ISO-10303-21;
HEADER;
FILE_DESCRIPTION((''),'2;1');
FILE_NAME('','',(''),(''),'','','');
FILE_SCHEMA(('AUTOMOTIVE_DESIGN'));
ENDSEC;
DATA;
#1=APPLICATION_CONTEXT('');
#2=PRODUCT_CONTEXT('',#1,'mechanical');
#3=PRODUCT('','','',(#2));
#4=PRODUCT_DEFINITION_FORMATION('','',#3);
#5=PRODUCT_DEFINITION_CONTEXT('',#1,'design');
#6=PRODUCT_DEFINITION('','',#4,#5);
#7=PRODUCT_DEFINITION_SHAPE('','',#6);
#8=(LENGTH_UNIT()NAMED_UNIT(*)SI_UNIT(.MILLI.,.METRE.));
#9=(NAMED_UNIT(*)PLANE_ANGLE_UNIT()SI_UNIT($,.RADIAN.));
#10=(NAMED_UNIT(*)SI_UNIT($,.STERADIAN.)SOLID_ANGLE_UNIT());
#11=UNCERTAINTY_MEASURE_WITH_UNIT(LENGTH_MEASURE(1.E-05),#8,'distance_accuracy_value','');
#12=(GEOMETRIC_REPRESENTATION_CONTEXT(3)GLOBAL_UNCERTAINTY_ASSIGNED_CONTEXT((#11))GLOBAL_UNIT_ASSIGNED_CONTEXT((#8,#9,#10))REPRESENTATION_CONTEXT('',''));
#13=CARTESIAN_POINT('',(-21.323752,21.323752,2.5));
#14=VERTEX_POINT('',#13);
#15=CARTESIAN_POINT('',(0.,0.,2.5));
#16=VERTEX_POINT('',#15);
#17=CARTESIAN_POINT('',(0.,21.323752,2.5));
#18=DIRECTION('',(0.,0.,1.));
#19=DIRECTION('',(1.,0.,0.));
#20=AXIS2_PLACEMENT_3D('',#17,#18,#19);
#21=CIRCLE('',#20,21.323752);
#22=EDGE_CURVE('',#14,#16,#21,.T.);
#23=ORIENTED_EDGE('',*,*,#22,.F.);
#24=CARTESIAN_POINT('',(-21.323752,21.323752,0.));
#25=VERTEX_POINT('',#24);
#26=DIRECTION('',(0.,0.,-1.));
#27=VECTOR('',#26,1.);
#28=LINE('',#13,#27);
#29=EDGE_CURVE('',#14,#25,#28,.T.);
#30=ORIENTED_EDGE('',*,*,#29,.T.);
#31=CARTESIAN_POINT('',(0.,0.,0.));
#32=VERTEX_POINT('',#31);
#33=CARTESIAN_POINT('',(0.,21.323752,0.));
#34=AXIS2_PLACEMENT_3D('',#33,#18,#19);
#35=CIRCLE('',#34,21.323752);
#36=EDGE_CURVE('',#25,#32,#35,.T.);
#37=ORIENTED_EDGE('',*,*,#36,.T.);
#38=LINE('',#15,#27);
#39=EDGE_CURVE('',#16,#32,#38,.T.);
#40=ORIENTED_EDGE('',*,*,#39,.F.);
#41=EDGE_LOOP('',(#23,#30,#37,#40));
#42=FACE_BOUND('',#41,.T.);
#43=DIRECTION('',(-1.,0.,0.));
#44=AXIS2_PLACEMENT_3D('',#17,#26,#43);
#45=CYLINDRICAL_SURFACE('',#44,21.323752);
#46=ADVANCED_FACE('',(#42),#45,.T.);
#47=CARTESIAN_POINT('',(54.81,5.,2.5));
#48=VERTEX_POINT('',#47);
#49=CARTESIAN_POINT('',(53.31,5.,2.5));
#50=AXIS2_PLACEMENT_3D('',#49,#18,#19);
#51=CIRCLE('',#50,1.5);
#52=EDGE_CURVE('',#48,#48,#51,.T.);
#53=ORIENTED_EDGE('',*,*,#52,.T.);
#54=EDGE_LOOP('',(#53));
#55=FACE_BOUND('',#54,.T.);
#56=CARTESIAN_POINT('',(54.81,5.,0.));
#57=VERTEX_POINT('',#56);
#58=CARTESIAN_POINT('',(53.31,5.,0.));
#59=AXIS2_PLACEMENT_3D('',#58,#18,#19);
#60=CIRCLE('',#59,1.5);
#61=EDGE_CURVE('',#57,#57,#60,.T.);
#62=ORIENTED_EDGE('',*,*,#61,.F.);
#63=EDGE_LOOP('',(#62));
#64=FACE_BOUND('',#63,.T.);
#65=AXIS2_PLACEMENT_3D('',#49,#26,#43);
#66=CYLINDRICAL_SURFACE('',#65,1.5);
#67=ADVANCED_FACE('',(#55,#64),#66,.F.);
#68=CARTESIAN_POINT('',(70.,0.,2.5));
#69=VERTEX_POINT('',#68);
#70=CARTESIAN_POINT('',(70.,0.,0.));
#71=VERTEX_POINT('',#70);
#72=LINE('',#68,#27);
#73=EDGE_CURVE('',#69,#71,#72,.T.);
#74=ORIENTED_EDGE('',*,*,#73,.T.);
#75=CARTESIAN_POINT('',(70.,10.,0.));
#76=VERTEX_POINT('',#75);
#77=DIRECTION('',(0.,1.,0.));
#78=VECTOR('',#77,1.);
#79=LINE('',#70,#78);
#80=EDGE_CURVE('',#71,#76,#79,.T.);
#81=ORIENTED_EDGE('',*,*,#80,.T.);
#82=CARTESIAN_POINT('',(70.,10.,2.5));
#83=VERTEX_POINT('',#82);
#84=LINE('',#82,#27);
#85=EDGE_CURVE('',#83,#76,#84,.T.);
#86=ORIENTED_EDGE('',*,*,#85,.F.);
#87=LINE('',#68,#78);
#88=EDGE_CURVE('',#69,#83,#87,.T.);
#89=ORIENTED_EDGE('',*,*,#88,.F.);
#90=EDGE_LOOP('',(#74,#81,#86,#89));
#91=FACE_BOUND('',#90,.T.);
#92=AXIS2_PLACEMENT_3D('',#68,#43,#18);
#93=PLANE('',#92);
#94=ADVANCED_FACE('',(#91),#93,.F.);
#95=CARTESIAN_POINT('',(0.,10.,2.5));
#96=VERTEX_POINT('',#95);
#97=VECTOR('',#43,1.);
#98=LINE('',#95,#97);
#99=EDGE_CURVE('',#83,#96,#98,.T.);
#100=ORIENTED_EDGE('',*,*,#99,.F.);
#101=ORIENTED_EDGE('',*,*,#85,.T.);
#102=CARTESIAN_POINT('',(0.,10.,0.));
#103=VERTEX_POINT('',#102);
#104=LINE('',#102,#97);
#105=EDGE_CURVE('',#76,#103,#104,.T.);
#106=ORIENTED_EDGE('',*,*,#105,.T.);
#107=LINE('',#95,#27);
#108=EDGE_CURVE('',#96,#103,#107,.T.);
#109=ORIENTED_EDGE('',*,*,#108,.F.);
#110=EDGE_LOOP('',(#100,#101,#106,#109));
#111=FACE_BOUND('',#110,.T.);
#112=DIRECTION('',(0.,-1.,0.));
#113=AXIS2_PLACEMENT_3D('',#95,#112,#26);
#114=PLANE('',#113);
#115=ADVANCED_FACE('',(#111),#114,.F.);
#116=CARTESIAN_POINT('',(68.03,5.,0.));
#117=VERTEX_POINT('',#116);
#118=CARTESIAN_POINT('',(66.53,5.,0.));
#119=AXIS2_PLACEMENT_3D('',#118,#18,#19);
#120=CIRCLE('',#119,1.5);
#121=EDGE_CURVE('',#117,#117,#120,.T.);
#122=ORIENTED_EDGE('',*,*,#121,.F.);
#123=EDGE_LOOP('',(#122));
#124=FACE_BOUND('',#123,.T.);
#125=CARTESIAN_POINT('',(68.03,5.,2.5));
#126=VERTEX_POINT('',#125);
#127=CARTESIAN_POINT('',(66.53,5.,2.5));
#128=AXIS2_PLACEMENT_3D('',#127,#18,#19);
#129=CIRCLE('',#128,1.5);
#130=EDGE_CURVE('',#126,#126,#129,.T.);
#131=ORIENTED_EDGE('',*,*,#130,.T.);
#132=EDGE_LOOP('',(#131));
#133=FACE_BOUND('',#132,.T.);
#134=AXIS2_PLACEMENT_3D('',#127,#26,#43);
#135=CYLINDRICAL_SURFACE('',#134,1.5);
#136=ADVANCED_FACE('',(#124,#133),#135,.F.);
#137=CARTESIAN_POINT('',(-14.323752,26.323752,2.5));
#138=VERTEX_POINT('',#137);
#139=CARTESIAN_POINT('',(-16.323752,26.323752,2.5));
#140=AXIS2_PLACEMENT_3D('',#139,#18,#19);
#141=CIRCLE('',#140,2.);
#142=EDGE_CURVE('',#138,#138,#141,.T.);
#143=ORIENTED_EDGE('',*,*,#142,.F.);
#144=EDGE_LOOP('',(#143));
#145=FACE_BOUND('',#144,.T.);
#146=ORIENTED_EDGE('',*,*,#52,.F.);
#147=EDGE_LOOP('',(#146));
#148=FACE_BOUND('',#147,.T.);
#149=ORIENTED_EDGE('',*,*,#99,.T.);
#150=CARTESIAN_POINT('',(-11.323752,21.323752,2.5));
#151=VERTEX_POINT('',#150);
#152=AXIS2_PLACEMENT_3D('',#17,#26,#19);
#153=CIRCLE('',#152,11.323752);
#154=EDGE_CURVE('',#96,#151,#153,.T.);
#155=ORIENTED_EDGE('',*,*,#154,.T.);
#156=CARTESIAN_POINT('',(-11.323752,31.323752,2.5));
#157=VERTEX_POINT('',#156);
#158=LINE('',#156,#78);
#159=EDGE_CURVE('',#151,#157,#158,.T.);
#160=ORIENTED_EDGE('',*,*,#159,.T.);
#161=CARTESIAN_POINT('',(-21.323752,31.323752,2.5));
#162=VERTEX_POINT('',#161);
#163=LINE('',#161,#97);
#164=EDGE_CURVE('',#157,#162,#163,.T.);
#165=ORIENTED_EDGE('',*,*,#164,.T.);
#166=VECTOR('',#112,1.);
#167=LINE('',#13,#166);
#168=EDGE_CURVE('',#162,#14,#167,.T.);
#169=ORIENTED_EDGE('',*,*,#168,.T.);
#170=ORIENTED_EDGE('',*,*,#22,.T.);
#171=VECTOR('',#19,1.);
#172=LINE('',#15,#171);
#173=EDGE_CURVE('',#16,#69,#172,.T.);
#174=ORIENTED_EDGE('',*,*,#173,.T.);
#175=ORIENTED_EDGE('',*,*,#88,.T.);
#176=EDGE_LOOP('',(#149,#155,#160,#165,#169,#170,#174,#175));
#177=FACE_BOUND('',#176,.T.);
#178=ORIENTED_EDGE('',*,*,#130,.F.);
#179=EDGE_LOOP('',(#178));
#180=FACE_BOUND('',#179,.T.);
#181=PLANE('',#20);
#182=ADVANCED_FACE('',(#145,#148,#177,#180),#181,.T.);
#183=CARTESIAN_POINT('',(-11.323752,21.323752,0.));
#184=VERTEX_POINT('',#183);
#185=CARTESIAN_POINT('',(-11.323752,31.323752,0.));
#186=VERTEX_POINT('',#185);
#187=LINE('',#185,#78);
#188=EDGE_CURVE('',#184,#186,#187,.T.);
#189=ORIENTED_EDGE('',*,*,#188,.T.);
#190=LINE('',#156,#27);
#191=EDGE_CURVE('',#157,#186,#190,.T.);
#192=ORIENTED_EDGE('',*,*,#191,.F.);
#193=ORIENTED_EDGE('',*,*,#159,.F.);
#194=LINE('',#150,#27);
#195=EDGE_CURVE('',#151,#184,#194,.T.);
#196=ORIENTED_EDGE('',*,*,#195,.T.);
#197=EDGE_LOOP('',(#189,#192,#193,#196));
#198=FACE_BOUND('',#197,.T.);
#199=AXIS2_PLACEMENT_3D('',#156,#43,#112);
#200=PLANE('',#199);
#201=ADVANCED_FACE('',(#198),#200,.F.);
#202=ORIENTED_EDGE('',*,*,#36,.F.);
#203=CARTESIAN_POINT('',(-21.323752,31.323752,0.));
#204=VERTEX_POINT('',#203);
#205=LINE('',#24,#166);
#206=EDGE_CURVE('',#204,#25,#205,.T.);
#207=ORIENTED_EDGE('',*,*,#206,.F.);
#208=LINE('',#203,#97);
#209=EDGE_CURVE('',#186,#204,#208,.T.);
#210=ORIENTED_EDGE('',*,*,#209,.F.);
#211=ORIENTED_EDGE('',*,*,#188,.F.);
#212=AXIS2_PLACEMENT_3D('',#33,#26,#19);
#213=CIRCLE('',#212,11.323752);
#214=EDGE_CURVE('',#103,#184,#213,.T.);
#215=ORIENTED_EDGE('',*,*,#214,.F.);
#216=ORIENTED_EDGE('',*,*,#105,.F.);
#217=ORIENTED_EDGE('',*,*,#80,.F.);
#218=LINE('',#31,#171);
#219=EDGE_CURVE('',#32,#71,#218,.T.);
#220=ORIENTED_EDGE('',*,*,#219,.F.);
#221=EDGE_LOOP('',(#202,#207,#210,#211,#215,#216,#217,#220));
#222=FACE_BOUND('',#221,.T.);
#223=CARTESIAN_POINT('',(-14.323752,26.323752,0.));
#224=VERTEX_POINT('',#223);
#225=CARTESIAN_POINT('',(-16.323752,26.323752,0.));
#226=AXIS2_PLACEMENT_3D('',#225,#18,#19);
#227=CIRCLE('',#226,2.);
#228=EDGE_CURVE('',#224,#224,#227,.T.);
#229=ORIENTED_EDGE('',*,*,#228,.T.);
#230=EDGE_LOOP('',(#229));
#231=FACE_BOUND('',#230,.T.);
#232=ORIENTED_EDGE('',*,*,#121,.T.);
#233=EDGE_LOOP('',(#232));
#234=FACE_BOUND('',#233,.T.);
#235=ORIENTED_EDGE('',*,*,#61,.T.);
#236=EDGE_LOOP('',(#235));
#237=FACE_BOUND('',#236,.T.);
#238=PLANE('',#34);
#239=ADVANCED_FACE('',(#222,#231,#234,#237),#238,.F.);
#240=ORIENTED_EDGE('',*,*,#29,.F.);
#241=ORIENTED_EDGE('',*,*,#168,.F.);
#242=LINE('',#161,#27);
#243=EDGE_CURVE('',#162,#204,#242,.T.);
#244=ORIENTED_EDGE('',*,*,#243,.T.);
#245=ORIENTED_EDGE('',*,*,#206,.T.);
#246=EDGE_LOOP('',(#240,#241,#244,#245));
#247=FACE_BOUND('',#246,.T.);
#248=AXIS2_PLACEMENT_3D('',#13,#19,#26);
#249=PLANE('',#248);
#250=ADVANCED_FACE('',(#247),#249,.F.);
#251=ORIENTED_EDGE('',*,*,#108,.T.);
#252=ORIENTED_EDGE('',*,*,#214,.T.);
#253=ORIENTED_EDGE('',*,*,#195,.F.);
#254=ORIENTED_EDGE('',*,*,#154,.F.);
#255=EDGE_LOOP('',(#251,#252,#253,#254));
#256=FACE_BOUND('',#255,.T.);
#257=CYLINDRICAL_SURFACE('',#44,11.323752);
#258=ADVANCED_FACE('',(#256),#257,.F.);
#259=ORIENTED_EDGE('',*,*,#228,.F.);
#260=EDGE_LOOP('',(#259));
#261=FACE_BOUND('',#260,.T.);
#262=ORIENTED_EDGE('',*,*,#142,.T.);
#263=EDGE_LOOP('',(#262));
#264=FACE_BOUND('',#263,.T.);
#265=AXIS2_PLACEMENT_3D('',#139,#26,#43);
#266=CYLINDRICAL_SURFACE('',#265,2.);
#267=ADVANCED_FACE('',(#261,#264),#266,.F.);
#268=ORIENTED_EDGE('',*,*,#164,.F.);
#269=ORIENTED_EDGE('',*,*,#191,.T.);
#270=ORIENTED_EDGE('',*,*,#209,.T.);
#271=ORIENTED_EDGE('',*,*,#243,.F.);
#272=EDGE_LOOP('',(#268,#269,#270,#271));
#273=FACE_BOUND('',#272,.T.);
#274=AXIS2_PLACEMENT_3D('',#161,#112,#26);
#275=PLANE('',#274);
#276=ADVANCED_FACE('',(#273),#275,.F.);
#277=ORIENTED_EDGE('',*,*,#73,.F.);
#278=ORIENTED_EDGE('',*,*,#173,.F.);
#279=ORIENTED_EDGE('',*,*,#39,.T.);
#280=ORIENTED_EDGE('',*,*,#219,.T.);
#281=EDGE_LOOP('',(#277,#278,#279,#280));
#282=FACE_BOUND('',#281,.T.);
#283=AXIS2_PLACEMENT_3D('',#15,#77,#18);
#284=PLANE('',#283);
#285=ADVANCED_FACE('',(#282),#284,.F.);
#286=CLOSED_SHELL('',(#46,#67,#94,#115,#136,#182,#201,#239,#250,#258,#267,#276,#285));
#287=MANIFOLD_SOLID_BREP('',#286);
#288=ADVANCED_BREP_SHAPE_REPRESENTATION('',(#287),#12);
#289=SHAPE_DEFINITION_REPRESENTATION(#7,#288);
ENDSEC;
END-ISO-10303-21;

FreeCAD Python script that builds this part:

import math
import FreeCAD as App
import Part
import Sketcher

doc = App.newDocument("Part")
body = doc.addObject("PartDesign::Body", "Body")

# Sketch on XY plane
sketch1 = body.newObject("Sketcher::SketchObject", "Sketch")
sketch1.AttachmentSupport = (doc.getObject("XY_Plane"), [""])
sketch1.MapMode = "FlatFace"
sketch1.addGeometry(Part.LineSegment(App.Vector(0, 0, 0), App.Vector(70, 0, 0)), False)
sketch1.addGeometry(Part.LineSegment(App.Vector(70, 0, 0), App.Vector(70, 10, 0)), False)
sketch1.addGeometry(Part.LineSegment(App.Vector(70, 10, 0), App.Vector(0, 10, 0)), False)
sketch1.addGeometry(Part.ArcOfCircle(Part.Circle(App.Vector(0, 21.3, 0), App.Vector(0, 0, 1), 11.3), math.radians(180), math.radians(270)), False)
sketch1.addGeometry(Part.LineSegment(App.Vector(-11.3, 21.3, 0), App.Vector(-11.3, 31.3, 0)), False)
sketch1.addGeometry(Part.LineSegment(App.Vector(-11.3, 31.3, 0), App.Vector(-21.3, 31.3, 0)), False)
sketch1.addGeometry(Part.LineSegment(App.Vector(-21.3, 31.3, 0), App.Vector(-21.3, 21.3, 0)), False)
sketch1.addGeometry(Part.ArcOfCircle(Part.Circle(App.Vector(0, 21.3, 0), App.Vector(0, 0, 1), 21.3), math.radians(180), math.radians(270)), False)
sketch1.addGeometry(Part.Circle(App.Vector(53.3, 5, 0), App.Vector(0, 0, 1), 1.5), False)
sketch1.addGeometry(Part.Circle(App.Vector(66.5, 5, 0), App.Vector(0, 0, 1), 1.5), False)
sketch1.addGeometry(Part.Circle(App.Vector(-16.3, 26.3, 0), App.Vector(0, 0, 1), 2), False)
sketch1.addConstraint(Sketcher.Constraint("Coincident", 0, 2, 1, 1))
sketch1.addConstraint(Sketcher.Constraint("Coincident", 1, 2, 2, 1))
sketch1.addConstraint(Sketcher.Constraint("Tangent", 2, 2, 3, 2))
sketch1.addConstraint(Sketcher.Constraint("Tangent", 3, 1, 4, 1))
sketch1.addConstraint(Sketcher.Constraint("Coincident", 4, 2, 5, 1))
sketch1.addConstraint(Sketcher.Constraint("Coincident", 5, 2, 6, 1))
sketch1.addConstraint(Sketcher.Constraint("Tangent", 6, 2, 7, 1))
sketch1.addConstraint(Sketcher.Constraint("Tangent", 7, 2, 0, 1))
sketch1.addConstraint(Sketcher.Constraint("Horizontal", 0))
sketch1.addConstraint(Sketcher.Constraint("Vertical", 1))
sketch1.addConstraint(Sketcher.Constraint("Horizontal", 2))
sketch1.addConstraint(Sketcher.Constraint("Vertical", 4))
sketch1.addConstraint(Sketcher.Constraint("Horizontal", 5))
sketch1.addConstraint(Sketcher.Constraint("Vertical", 6))
sketch1.addConstraint(Sketcher.Constraint("Coincident", 7, 2, -1, 1))
sketch1.addConstraint(Sketcher.Constraint("Coincident", 7, 3, 3, 3))
sketch1.addConstraint(Sketcher.Constraint("Equal", 8, 9))
sketch1.addConstraint(Sketcher.Constraint("Horizontal", 8, 3, 9, 3))
sketch1.addConstraint(Sketcher.Constraint("Equal", 1, 4))
sketch1.addConstraint(Sketcher.Constraint("Diameter", 8, 3.0))
sketch1.addConstraint(Sketcher.Constraint("Diameter", 10, 4.0))
sketch1.addConstraint(Sketcher.Constraint("DistanceX", 0, 1, 0, 2, 70.0))
sketch1.addConstraint(Sketcher.Constraint("DistanceX", 5, 2, 5, 1, 10.0))
sketch1.addConstraint(Sketcher.Constraint("DistanceY", -1, 1, 8, 3, 5.0))
sketch1.addConstraint(Sketcher.Constraint("DistanceY", 3, 3, 10, 3, 5.0))
sketch1.addConstraint(Sketcher.Constraint("DistanceX", 10, 3, 3, 1, 5.0))
sketch1.addConstraint(Sketcher.Constraint("DistanceX", -1, 1, 8, 3, 53.31))
sketch1.addConstraint(Sketcher.Constraint("DistanceX", -1, 1, 9, 3, 66.53))
sketch1.addConstraint(Sketcher.Constraint("Radius", 3, 11.323752))
pad1 = body.newObject("PartDesign::Pad", "Pad")
pad1.Profile = sketch1
pad1.Length = 2.5

doc.recompute()
